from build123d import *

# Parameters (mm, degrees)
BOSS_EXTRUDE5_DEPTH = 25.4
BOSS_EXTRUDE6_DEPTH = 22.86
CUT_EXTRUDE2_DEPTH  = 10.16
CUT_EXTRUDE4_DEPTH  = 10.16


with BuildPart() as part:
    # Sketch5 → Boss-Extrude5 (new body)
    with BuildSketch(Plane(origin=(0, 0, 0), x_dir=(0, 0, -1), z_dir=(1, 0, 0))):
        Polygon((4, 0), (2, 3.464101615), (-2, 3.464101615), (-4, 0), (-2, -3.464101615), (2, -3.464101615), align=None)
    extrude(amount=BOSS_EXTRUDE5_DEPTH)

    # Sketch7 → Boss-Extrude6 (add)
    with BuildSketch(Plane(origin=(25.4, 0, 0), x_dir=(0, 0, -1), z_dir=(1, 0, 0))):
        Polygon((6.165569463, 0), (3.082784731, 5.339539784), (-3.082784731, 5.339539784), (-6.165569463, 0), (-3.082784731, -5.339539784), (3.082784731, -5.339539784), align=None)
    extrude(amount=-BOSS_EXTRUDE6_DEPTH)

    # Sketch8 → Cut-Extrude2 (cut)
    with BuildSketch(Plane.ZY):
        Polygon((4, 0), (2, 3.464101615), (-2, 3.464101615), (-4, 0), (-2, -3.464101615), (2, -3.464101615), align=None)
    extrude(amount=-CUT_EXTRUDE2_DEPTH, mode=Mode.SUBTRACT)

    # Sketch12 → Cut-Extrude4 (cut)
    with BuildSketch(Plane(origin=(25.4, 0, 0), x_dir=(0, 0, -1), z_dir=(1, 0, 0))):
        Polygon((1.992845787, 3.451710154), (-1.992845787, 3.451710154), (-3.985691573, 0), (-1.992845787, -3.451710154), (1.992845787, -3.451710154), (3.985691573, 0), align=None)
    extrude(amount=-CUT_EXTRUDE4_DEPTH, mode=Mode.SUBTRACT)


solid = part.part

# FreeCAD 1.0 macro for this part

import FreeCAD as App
import Part
import Sketcher
from FreeCAD import Vector
Q = App.Units.Quantity


def add_polygon(sketch, points):
    """Adds a closed chain of lines whose ends are joined by coincident constraints."""
    first, n = sketch.GeometryCount, len(points)
    for a, b in zip(points, points[1:] + points[:1]):
        sketch.addGeometry(Part.LineSegment(App.Vector(*a, 0), App.Vector(*b, 0)), False)
    for i in range(n):
        sketch.addConstraint(Sketcher.Constraint("Coincident", first + i, 2, first + (i + 1) % n, 1))

doc = App.newDocument("Part")
body = doc.addObject("PartDesign::Body", "Body")

# Sketch on YZ plane
sketch1 = body.newObject("Sketcher::SketchObject", "Sketch")
sketch1.AttachmentSupport = (doc.getObject("YZ_Plane"), [""])
sketch1.MapMode = "FlatFace"
add_polygon(sketch1, [(0, -4), (3.5, -2), (3.5, 2), (0, 4), (-3.5, 2), (-3.5, -2)])  # lines 0-5
sketch1.addConstraint([
    Sketcher.Constraint("Vertical", 1),
    Sketcher.Constraint("Vertical", 4),
    Sketcher.Constraint("Symmetric", 0, 2, 3, 2, -1, 1),
    Sketcher.Constraint("Symmetric", 2, 2, 5, 2, -1, 1),
    Sketcher.Constraint("PointOnObject", 2, 2, -2),
    Sketcher.Constraint("Parallel", 2, 5),
    Sketcher.Constraint("Horizontal", 1, 2, 3, 2),
    Sketcher.Constraint("Angle", 0, Q("30 deg")),
    Sketcher.Constraint("DistanceY", 1, 1, 1, 2, Q("4 mm")),
    Sketcher.Constraint("Distance", 0, Q("4 mm")),
])
pad1 = body.newObject("PartDesign::Pad", "Pad")
pad1.Profile = sketch1
pad1.Length = Q("1 in")

# Sketch on YZ plane
sketch2 = body.newObject("Sketcher::SketchObject", "Sketch001")
sketch2.AttachmentSupport = (doc.getObject("YZ_Plane"), [""])
sketch2.MapMode = "FlatFace"
sketch2.AttachmentOffset = App.Placement(Vector(0, 0, 1 * 25.4), App.Rotation())
add_polygon(sketch2, [(0, -6), (5, -3), (5, 3), (0, 6), (-5, 3), (-5, -3)])  # lines 0-5
sketch2.addConstraint([
    Sketcher.Constraint("Vertical", 1),
    Sketcher.Constraint("Vertical", 4),
    Sketcher.Constraint("Symmetric", 0, 2, 3, 2, -1, 1),
    Sketcher.Constraint("Symmetric", 2, 2, 5, 2, -1, 1),
    Sketcher.Constraint("PointOnObject", 2, 2, -2),
    Sketcher.Constraint("Parallel", 2, 5),
    Sketcher.Constraint("Horizontal", 1, 2, 3, 2),
    Sketcher.Constraint("Angle", 0, Q("30 deg")),
    Sketcher.Constraint("DistanceY", 1, 1, 1, 2, Q("6.165569 mm")),
    Sketcher.Constraint("Distance", 0, Q("6.165569 mm")),
])
pad2 = body.newObject("PartDesign::Pad", "Pad001")
pad2.Profile = sketch2
pad2.Length = Q("0.9 in")
pad2.Reversed = True

# Sketch on YZ plane
sketch3 = body.newObject("Sketcher::SketchObject", "Sketch002")
sketch3.AttachmentSupport = (doc.getObject("YZ_Plane"), [""])
sketch3.MapMode = "FlatFace"
add_polygon(sketch3, [(0, 4), (3.5, 2), (3.5, -2), (0, -4), (-3.5, -2), (-3.5, 2)])  # lines 0-5
sketch3.addConstraint([
    Sketcher.Constraint("Vertical", 1),
    Sketcher.Constraint("Vertical", 4),
    Sketcher.Constraint("Symmetric", 0, 2, 3, 2, -1, 1),
    Sketcher.Constraint("Symmetric", 2, 2, 5, 2, -1, 1),
    Sketcher.Constraint("PointOnObject", 2, 2, -2),
    Sketcher.Constraint("Parallel", 2, 5),
    Sketcher.Constraint("Horizontal", 1, 2, 3, 2),
    Sketcher.Constraint("Angle", 0, Q("-30 deg")),
    Sketcher.Constraint("DistanceY", 1, 2, 1, 1, Q("4 mm")),
    Sketcher.Constraint("Distance", 0, Q("4 mm")),
])
pocket1 = body.newObject("PartDesign::Pocket", "Pocket")
pocket1.Profile = sketch3
pocket1.Length = Q("0.4 in")
pocket1.Reversed = True

# Sketch on YZ plane
sketch4 = body.newObject("Sketcher::SketchObject", "Sketch003")
sketch4.AttachmentSupport = (doc.getObject("YZ_Plane"), [""])
sketch4.MapMode = "FlatFace"
sketch4.AttachmentOffset = App.Placement(Vector(0, 0, 1 * 25.4), App.Rotation())
add_polygon(sketch4, [(3.5, -2), (3.5, 2), (0, 4), (-3.5, 2), (-3.5, -2), (0, -4)])  # lines 0-5
sketch4.addConstraint([
    Sketcher.Constraint("Vertical", 0),
    Sketcher.Constraint("Vertical", 3),
    Sketcher.Constraint("Symmetric", 0, 2, 3, 2, -1, 1),
    Sketcher.Constraint("Symmetric", 1, 2, 4, 2, -1, 1),
    Sketcher.Constraint("PointOnObject", 1, 2, -2),
    Sketcher.Constraint("Parallel", 2, 5),
    Sketcher.Constraint("Horizontal", 0, 2, 2, 2),
    Sketcher.Constraint("Angle", 1, Q("150 deg")),
    Sketcher.Constraint("DistanceY", 0, 1, 0, 2, Q("3.985692 mm")),
    Sketcher.Constraint("Distance", 1, Q("3.985692 mm")),
])
pocket2 = body.newObject("PartDesign::Pocket", "Pocket001")
pocket2.Profile = sketch4
pocket2.Length = Q("0.4 in")

doc.recompute()
